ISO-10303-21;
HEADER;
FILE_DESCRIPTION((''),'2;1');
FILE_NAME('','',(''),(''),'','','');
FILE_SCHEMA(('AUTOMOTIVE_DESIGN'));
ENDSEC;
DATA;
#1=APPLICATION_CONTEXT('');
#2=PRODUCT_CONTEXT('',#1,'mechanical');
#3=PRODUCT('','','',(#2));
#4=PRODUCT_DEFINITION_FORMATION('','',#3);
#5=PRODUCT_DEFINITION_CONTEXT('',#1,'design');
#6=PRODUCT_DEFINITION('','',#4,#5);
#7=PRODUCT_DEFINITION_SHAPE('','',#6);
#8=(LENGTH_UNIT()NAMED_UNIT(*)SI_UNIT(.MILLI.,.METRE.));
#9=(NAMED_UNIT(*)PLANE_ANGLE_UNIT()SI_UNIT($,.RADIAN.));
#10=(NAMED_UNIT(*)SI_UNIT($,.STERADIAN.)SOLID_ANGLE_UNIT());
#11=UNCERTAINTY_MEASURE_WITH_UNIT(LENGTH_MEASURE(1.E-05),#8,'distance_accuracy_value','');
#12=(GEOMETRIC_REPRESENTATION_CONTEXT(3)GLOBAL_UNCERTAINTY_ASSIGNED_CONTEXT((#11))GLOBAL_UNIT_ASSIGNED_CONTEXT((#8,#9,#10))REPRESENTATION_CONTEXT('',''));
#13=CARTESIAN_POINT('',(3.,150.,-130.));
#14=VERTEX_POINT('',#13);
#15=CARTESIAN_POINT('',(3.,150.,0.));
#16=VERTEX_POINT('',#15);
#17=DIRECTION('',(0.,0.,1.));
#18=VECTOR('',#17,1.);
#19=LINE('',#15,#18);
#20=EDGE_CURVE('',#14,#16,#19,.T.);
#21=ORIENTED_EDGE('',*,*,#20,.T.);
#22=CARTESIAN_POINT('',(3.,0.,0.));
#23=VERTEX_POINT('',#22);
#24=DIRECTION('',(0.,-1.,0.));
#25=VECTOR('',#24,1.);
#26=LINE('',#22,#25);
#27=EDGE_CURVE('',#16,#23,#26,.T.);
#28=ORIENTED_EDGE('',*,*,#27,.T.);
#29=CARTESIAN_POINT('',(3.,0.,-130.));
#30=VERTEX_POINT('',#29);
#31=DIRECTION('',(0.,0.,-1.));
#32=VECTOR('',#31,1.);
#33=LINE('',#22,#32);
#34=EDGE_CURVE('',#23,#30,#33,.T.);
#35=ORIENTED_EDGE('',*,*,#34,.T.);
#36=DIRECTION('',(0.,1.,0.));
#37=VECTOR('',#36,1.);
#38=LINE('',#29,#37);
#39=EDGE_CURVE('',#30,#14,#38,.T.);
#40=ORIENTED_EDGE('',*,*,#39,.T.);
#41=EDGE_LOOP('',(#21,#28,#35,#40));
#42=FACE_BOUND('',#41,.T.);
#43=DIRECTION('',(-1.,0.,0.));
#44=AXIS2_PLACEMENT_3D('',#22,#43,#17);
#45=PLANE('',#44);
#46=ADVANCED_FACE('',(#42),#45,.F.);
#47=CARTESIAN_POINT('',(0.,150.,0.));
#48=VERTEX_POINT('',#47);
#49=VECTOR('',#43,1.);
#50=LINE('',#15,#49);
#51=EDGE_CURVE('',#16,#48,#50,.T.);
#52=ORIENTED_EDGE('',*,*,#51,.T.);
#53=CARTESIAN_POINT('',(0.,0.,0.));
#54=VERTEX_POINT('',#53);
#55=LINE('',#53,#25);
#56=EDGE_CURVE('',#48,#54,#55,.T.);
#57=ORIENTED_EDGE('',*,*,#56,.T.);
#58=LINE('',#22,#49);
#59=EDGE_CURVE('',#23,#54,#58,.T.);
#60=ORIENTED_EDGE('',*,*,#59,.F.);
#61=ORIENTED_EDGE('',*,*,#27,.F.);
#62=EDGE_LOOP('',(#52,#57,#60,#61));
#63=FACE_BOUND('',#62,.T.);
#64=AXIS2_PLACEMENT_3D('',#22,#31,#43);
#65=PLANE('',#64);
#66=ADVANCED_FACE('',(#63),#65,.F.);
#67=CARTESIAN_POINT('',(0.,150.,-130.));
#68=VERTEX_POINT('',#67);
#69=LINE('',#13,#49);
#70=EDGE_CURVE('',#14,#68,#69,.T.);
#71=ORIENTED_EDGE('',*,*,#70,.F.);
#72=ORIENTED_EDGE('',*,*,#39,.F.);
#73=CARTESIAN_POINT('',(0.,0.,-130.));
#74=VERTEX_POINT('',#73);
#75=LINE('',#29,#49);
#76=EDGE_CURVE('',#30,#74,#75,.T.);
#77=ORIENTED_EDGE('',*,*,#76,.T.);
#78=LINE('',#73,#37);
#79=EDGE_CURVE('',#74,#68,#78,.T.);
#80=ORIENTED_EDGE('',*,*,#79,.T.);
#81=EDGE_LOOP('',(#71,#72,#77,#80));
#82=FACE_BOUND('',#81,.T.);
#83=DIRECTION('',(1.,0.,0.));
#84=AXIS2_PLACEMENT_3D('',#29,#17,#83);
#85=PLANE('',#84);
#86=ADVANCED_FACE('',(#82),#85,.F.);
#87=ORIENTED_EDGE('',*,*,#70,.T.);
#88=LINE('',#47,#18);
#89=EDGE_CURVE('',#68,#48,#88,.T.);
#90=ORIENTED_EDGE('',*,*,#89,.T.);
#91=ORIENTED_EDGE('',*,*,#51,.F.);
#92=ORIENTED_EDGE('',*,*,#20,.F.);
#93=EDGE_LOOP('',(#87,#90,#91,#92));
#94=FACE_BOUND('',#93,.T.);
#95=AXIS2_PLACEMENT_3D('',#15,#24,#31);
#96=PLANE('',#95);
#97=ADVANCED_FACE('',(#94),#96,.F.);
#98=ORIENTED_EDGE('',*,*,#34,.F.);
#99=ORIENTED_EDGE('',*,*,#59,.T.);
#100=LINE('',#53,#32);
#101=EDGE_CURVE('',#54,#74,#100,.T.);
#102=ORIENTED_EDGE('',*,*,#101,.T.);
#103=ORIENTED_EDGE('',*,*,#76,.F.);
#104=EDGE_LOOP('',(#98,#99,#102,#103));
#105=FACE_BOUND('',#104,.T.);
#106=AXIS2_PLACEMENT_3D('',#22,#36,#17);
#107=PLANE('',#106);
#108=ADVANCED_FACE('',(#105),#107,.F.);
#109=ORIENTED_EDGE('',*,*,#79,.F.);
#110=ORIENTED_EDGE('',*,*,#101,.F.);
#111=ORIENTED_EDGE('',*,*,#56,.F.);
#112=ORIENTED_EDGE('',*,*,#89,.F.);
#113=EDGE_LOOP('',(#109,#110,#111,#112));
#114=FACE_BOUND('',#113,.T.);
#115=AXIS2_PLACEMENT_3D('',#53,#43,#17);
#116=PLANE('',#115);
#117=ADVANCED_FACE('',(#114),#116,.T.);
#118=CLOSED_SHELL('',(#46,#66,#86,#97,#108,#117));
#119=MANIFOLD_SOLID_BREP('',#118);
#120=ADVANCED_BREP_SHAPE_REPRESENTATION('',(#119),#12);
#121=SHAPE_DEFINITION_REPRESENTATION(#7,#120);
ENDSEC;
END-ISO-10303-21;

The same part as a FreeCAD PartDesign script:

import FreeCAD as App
import Part
import Sketcher

doc = App.newDocument("Part")
body = doc.addObject("PartDesign::Body", "Body")

# Sketch on YZ plane
sketch1 = body.newObject("Sketcher::SketchObject", "Sketch")
sketch1.AttachmentSupport = (doc.getObject("YZ_Plane"), [""])
sketch1.MapMode = "FlatFace"
sketch1.addGeometry([
    Part.LineSegment(App.Vector(150, 0, 0), App.Vector(0, 0, 0)),
    Part.LineSegment(App.Vector(0, 0, 0), App.Vector(0, -130, 0)),
    Part.LineSegment(App.Vector(0, -130, 0), App.Vector(150, -130, 0)),
    Part.LineSegment(App.Vector(150, -130, 0), App.Vector(150, 0, 0)),
], False)
sketch1.addConstraint([
    Sketcher.Constraint("Coincident", 0, 2, 1, 1),
    Sketcher.Constraint("Coincident", 1, 2, 2, 1),
    Sketcher.Constraint("Coincident", 2, 2, 3, 1),
    Sketcher.Constraint("Coincident", 3, 2, 0, 1),
    Sketcher.Constraint("Horizontal", 0),
    Sketcher.Constraint("Vertical", 1),
    Sketcher.Constraint("Horizontal", 2),
    Sketcher.Constraint("Vertical", 3),
    Sketcher.Constraint("Coincident", 0, 2, -1, 1),
    Sketcher.Constraint("DistanceX", 0, 2, 0, 1, 150.0),
    Sketcher.Constraint("DistanceY", 1, 2, 1, 1, 130.0),
])
pad1 = body.newObject("PartDesign::Pad", "Pad")
pad1.Profile = sketch1
pad1.Length = 3

doc.recompute()
